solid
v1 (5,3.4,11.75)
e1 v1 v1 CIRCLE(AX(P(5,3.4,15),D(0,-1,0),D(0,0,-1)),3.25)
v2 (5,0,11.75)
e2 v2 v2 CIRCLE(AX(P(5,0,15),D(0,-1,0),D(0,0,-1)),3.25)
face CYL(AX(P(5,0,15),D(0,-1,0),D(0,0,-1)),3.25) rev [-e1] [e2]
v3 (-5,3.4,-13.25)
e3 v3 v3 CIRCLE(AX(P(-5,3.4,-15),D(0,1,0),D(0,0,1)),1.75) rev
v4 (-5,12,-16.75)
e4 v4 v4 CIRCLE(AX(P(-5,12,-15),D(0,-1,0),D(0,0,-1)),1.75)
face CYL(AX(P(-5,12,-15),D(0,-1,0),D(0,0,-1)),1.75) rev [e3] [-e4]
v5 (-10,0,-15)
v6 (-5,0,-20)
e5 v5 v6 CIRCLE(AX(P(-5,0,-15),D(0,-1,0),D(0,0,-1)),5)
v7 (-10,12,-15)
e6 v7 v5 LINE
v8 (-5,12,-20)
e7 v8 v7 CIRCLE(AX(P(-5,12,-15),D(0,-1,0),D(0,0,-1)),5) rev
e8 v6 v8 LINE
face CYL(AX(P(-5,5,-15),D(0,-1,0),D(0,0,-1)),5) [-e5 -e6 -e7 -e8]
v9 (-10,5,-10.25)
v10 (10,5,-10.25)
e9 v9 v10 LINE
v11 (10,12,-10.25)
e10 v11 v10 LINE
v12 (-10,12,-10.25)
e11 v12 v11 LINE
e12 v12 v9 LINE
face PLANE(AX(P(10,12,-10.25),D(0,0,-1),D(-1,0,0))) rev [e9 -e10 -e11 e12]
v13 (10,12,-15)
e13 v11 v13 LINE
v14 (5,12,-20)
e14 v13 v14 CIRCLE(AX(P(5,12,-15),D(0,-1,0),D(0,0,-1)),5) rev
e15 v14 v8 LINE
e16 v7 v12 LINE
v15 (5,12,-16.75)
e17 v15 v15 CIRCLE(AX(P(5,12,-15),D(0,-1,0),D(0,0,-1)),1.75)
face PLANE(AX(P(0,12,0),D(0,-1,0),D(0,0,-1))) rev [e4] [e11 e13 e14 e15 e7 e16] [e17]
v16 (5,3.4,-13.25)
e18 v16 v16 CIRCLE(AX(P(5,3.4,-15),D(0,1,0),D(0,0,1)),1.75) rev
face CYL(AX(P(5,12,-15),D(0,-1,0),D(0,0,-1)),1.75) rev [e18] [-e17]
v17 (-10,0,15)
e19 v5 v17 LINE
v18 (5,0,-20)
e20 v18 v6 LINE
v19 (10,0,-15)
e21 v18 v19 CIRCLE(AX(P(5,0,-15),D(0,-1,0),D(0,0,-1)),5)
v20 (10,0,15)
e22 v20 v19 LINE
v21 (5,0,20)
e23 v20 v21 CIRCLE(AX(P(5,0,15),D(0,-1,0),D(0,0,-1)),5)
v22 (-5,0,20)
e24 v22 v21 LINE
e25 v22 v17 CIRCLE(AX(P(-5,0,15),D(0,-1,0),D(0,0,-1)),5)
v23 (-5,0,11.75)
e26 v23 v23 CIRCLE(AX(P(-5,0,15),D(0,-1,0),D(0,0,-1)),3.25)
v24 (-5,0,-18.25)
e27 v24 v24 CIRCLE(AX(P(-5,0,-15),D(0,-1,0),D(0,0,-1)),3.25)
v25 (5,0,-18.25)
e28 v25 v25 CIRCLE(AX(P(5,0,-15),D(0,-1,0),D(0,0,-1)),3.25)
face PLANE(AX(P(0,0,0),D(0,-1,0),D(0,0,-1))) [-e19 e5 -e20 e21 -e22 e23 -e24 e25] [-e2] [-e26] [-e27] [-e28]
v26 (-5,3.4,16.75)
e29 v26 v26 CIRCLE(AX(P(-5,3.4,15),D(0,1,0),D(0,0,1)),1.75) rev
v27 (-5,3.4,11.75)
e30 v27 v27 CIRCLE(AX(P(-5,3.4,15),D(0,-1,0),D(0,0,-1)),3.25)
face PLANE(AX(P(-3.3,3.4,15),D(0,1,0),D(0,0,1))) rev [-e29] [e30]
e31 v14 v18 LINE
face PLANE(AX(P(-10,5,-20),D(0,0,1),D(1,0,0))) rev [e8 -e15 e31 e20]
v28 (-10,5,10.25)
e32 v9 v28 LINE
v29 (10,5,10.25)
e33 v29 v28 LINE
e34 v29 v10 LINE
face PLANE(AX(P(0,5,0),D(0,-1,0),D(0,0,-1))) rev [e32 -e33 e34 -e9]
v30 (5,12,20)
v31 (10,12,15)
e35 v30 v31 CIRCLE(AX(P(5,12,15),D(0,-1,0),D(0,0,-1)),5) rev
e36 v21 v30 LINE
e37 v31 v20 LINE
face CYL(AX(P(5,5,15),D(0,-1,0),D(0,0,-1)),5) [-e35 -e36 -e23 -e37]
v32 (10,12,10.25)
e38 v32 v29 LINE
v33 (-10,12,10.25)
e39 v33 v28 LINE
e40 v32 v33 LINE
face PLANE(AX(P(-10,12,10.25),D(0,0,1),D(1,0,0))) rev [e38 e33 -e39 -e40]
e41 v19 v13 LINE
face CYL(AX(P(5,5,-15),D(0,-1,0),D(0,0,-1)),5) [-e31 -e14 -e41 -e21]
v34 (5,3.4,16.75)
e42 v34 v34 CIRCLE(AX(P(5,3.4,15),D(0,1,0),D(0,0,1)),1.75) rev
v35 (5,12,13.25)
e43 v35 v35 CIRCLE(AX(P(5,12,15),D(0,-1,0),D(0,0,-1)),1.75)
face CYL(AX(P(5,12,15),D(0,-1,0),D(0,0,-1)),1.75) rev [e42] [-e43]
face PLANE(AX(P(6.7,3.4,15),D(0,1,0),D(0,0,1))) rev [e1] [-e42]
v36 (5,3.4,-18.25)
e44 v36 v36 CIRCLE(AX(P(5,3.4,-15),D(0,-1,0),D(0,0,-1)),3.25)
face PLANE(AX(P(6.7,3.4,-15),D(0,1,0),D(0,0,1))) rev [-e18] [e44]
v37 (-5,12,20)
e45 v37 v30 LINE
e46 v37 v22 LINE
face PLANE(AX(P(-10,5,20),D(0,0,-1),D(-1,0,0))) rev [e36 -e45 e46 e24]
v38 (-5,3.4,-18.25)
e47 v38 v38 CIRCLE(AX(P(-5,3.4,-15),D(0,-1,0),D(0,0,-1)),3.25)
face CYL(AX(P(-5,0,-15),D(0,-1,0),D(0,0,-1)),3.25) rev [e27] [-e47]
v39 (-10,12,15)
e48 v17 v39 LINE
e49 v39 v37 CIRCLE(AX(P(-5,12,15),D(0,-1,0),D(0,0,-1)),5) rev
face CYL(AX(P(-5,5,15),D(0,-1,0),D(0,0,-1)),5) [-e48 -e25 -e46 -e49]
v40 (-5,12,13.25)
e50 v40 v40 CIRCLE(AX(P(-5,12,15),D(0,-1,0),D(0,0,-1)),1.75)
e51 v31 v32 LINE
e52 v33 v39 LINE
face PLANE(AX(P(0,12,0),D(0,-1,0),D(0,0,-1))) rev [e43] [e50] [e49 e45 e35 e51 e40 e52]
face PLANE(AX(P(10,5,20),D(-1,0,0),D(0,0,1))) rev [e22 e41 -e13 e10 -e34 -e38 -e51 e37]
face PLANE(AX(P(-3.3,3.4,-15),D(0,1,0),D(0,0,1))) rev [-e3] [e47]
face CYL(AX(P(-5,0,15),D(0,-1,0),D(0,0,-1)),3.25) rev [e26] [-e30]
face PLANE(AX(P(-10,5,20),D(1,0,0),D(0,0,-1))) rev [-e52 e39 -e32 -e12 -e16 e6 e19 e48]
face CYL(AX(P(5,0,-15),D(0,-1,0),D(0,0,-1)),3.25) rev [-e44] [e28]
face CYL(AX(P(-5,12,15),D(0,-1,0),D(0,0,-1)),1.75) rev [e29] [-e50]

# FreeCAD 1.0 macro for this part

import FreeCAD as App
import Part
import Sketcher

V = App.Vector
Q = App.Units.Quantity


def edges_at(feature, points):
    """Names of the edges that pass closest to the given points."""
    edges = feature.Shape.Edges
    near = lambda p: min(range(len(edges)), key=lambda i: edges[i].distToShape(Part.Vertex(*p))[0])
    return sorted({f"Edge{near(p) + 1}" for p in points})

doc = App.newDocument("Part")
body = doc.addObject("PartDesign::Body", "Body")

# Sketch on XZ plane
sketch1 = doc.addObject("Sketcher::SketchObject", "Sketch")
body.addObject(sketch1)
sketch1.AttachmentSupport = (doc.XZ_Plane, [""])
sketch1.MapMode = "FlatFace"
sketch1.addGeometry(Part.LineSegment(V(-10, -20, 0), V(-10, 20, 0)), False)
sketch1.addGeometry(Part.LineSegment(V(-10, 20, 0), V(10, 20, 0)), False)
sketch1.addGeometry(Part.LineSegment(V(10, 20, 0), V(10, -20, 0)), False)
sketch1.addGeometry(Part.LineSegment(V(10, -20, 0), V(-10, -20, 0)), False)
sketch1.addConstraint(Sketcher.Constraint("Coincident", 0, 2, 1, 1))
sketch1.addConstraint(Sketcher.Constraint("Coincident", 1, 2, 2, 1))
sketch1.addConstraint(Sketcher.Constraint("Coincident", 2, 2, 3, 1))
sketch1.addConstraint(Sketcher.Constraint("Coincident", 3, 2, 0, 1))
sketch1.addConstraint(Sketcher.Constraint("Vertical", 0))
sketch1.addConstraint(Sketcher.Constraint("Horizontal", 1))
sketch1.addConstraint(Sketcher.Constraint("Vertical", 2))
sketch1.addConstraint(Sketcher.Constraint("Horizontal", 3))
sketch1.addConstraint(Sketcher.Constraint("Symmetric", 0, 2, 2, 2, -1, 1))
sketch1.addConstraint(Sketcher.Constraint("DistanceX", 1, 1, 1, 2, Q("20 mm")))
sketch1.addConstraint(Sketcher.Constraint("DistanceY", 0, 1, 0, 2, Q("40 mm")))
pad1 = doc.addObject("PartDesign::Pad", "Pad")
body.addObject(pad1)
pad1.Profile = sketch1
pad1.Length = 5
pad1.Reversed = True

# Sketch on XZ plane
sketch2 = doc.addObject("Sketcher::SketchObject", "Sketch001")
body.addObject(sketch2)
sketch2.AttachmentSupport = (doc.XZ_Plane, [""])
sketch2.MapMode = "FlatFace"
sketch2.AttachmentOffset = App.Placement(V(0, 0, -5), App.Rotation())
sketch2.addGeometry(Part.LineSegment(V(-10, 10, 0), V(-10, 20, 0)), False)
sketch2.addGeometry(Part.LineSegment(V(-10, 20, 0), V(10, 20, 0)), False)
sketch2.addGeometry(Part.LineSegment(V(10, 20, 0), V(10, 10, 0)), False)
sketch2.addGeometry(Part.LineSegment(V(10, 10, 0), V(-10, 10, 0)), False)
sketch2.addGeometry(Part.LineSegment(V(-10, -20, 0), V(-10, -10, 0)), False)
sketch2.addGeometry(Part.LineSegment(V(-10, -10, 0), V(10, -10, 0)), False)
sketch2.addGeometry(Part.LineSegment(V(10, -10, 0), V(10, -20, 0)), False)
sketch2.addGeometry(Part.LineSegment(V(10, -20, 0), V(-10, -20, 0)), False)
sketch2.addConstraint(Sketcher.Constraint("Coincident", 0, 2, 1, 1))
sketch2.addConstraint(Sketcher.Constraint("Coincident", 1, 2, 2, 1))
sketch2.addConstraint(Sketcher.Constraint("Coincident", 2, 2, 3, 1))
sketch2.addConstraint(Sketcher.Constraint("Coincident", 3, 2, 0, 1))
sketch2.addConstraint(Sketcher.Constraint("Coincident", 4, 2, 5, 1))
sketch2.addConstraint(Sketcher.Constraint("Coincident", 5, 2, 6, 1))
sketch2.addConstraint(Sketcher.Constraint("Coincident", 6, 2, 7, 1))
sketch2.addConstraint(Sketcher.Constraint("Coincident", 7, 2, 4, 1))
sketch2.addConstraint(Sketcher.Constraint("Vertical", 0))
sketch2.addConstraint(Sketcher.Constraint("Horizontal", 1))
sketch2.addConstraint(Sketcher.Constraint("Vertical", 2))
sketch2.addConstraint(Sketcher.Constraint("Horizontal", 3))
sketch2.addConstraint(Sketcher.Constraint("Vertical", 4))
sketch2.addConstraint(Sketcher.Constraint("Horizontal", 5))
sketch2.addConstraint(Sketcher.Constraint("Vertical", 6))
sketch2.addConstraint(Sketcher.Constraint("Horizontal", 7))
sketch2.addConstraint(Sketcher.Constraint("Symmetric", 2, 2, 4, 2, -1, 1))
sketch2.addConstraint(Sketcher.Constraint("Symmetric", 0, 2, 6, 2, -1, 1))
sketch2.addConstraint(Sketcher.Constraint("Vertical", 3, 2, 4, 2))
sketch2.addConstraint(Sketcher.Constraint("DistanceX", 1, 1, 1, 2, Q("20 mm")))
sketch2.addConstraint(Sketcher.Constraint("DistanceY", -1, 1, 0, 2, Q("20 mm")))
sketch2.addConstraint(Sketcher.Constraint("DistanceY", 0, 1, 0, 2, Q("9.75 mm")))
pad2 = doc.addObject("PartDesign::Pad", "Pad001")
body.addObject(pad2)
pad2.Profile = sketch2
pad2.Length = 7
pad2.Reversed = True

# Sketch on XZ plane
sketch3 = doc.addObject("Sketcher::SketchObject", "Sketch002")
body.addObject(sketch3)
sketch3.AttachmentSupport = (doc.XZ_Plane, [""])
sketch3.MapMode = "FlatFace"
sketch3.addGeometry(Part.Circle(V(5, 15, 0), V(0, 0, 1), 1.8), False)
sketch3.addGeometry(Part.Circle(V(-5, 15, 0), V(0, 0, 1), 1.8), False)
sketch3.addGeometry(Part.Circle(V(-5, -15, 0), V(0, 0, 1), 1.8), False)
sketch3.addGeometry(Part.Circle(V(5, -15, 0), V(0, 0, 1), 1.8), False)
sketch3.addConstraint(Sketcher.Constraint("Equal", 0, 1))
sketch3.addConstraint(Sketcher.Constraint("Equal", 1, 2))
sketch3.addConstraint(Sketcher.Constraint("Equal", 2, 3))
sketch3.addConstraint(Sketcher.Constraint("Symmetric", 0, 3, 2, 3, -1, 1))
sketch3.addConstraint(Sketcher.Constraint("Symmetric", 1, 3, 3, 3, -1, 1))
sketch3.addConstraint(Sketcher.Constraint("Symmetric", 0, 3, 1, 3, -2))
sketch3.addConstraint(Sketcher.Constraint("Diameter", 0, Q("3.5 mm")))
sketch3.addConstraint(Sketcher.Constraint("DistanceX", -1, 1, 0, 3, Q("5 mm")))
sketch3.addConstraint(Sketcher.Constraint("DistanceY", -1, 1, 0, 3, Q("15 mm")))
pocket1 = doc.addObject("PartDesign::Pocket", "Pocket")
body.addObject(pocket1)
pocket1.Profile = sketch3
pocket1.Type = "ThroughAll"

# Sketch on XZ plane
sketch4 = doc.addObject("Sketcher::SketchObject", "Sketch003")
body.addObject(sketch4)
sketch4.AttachmentSupport = (doc.XZ_Plane, [""])
sketch4.MapMode = "FlatFace"
sketch4.addGeometry(Part.Circle(V(5, 15, 0), V(0, 0, 1), 1.7), False)
sketch4.addGeometry(Part.Circle(V(-5, 15, 0), V(0, 0, 1), 1.7), False)
sketch4.addGeometry(Part.Circle(V(-5, -15, 0), V(0, 0, 1), 1.7), False)
sketch4.addGeometry(Part.Circle(V(5, -15, 0), V(0, 0, 1), 1.7), False)
sketch4.addConstraint(Sketcher.Constraint("Equal", 0, 1))
sketch4.addConstraint(Sketcher.Constraint("Equal", 1, 2))
sketch4.addConstraint(Sketcher.Constraint("Equal", 2, 3))
sketch4.addConstraint(Sketcher.Constraint("Symmetric", 0, 3, 2, 3, -1, 1))
sketch4.addConstraint(Sketcher.Constraint("Symmetric", 1, 3, 3, 3, -1, 1))
sketch4.addConstraint(Sketcher.Constraint("Symmetric", 0, 3, 1, 3, -2))
sketch4.addConstraint(Sketcher.Constraint("Diameter", 0, Q("3.4 mm")))
sketch4.addConstraint(Sketcher.Constraint("DistanceX", -1, 1, 0, 3, Q("5 mm")))
sketch4.addConstraint(Sketcher.Constraint("DistanceY", -1, 1, 0, 3, Q("15 mm")))
doc.recompute()
hole = doc.addObject("PartDesign::Hole", "Hole")
body.addObject(hole)
hole.Profile = sketch4
hole.ThreadType = "None"
hole.Diameter = 3.4
hole.DepthType = "ThroughAll"
hole.HoleCutType = "Counterbore"
hole.HoleCutDiameter = 6.5
hole.HoleCutDepth = 3.4
doc.recompute()

fillet = doc.addObject("PartDesign::Fillet", "Fillet")
body.addObject(fillet)
fillet.Base = (hole, edges_at(hole, [
    (10, 6, 20),
    (-10, 6, 20),
    (-10, 6, -20),
    (10, 6, -20),
]))
fillet.Radius = 5

doc.recompute()
